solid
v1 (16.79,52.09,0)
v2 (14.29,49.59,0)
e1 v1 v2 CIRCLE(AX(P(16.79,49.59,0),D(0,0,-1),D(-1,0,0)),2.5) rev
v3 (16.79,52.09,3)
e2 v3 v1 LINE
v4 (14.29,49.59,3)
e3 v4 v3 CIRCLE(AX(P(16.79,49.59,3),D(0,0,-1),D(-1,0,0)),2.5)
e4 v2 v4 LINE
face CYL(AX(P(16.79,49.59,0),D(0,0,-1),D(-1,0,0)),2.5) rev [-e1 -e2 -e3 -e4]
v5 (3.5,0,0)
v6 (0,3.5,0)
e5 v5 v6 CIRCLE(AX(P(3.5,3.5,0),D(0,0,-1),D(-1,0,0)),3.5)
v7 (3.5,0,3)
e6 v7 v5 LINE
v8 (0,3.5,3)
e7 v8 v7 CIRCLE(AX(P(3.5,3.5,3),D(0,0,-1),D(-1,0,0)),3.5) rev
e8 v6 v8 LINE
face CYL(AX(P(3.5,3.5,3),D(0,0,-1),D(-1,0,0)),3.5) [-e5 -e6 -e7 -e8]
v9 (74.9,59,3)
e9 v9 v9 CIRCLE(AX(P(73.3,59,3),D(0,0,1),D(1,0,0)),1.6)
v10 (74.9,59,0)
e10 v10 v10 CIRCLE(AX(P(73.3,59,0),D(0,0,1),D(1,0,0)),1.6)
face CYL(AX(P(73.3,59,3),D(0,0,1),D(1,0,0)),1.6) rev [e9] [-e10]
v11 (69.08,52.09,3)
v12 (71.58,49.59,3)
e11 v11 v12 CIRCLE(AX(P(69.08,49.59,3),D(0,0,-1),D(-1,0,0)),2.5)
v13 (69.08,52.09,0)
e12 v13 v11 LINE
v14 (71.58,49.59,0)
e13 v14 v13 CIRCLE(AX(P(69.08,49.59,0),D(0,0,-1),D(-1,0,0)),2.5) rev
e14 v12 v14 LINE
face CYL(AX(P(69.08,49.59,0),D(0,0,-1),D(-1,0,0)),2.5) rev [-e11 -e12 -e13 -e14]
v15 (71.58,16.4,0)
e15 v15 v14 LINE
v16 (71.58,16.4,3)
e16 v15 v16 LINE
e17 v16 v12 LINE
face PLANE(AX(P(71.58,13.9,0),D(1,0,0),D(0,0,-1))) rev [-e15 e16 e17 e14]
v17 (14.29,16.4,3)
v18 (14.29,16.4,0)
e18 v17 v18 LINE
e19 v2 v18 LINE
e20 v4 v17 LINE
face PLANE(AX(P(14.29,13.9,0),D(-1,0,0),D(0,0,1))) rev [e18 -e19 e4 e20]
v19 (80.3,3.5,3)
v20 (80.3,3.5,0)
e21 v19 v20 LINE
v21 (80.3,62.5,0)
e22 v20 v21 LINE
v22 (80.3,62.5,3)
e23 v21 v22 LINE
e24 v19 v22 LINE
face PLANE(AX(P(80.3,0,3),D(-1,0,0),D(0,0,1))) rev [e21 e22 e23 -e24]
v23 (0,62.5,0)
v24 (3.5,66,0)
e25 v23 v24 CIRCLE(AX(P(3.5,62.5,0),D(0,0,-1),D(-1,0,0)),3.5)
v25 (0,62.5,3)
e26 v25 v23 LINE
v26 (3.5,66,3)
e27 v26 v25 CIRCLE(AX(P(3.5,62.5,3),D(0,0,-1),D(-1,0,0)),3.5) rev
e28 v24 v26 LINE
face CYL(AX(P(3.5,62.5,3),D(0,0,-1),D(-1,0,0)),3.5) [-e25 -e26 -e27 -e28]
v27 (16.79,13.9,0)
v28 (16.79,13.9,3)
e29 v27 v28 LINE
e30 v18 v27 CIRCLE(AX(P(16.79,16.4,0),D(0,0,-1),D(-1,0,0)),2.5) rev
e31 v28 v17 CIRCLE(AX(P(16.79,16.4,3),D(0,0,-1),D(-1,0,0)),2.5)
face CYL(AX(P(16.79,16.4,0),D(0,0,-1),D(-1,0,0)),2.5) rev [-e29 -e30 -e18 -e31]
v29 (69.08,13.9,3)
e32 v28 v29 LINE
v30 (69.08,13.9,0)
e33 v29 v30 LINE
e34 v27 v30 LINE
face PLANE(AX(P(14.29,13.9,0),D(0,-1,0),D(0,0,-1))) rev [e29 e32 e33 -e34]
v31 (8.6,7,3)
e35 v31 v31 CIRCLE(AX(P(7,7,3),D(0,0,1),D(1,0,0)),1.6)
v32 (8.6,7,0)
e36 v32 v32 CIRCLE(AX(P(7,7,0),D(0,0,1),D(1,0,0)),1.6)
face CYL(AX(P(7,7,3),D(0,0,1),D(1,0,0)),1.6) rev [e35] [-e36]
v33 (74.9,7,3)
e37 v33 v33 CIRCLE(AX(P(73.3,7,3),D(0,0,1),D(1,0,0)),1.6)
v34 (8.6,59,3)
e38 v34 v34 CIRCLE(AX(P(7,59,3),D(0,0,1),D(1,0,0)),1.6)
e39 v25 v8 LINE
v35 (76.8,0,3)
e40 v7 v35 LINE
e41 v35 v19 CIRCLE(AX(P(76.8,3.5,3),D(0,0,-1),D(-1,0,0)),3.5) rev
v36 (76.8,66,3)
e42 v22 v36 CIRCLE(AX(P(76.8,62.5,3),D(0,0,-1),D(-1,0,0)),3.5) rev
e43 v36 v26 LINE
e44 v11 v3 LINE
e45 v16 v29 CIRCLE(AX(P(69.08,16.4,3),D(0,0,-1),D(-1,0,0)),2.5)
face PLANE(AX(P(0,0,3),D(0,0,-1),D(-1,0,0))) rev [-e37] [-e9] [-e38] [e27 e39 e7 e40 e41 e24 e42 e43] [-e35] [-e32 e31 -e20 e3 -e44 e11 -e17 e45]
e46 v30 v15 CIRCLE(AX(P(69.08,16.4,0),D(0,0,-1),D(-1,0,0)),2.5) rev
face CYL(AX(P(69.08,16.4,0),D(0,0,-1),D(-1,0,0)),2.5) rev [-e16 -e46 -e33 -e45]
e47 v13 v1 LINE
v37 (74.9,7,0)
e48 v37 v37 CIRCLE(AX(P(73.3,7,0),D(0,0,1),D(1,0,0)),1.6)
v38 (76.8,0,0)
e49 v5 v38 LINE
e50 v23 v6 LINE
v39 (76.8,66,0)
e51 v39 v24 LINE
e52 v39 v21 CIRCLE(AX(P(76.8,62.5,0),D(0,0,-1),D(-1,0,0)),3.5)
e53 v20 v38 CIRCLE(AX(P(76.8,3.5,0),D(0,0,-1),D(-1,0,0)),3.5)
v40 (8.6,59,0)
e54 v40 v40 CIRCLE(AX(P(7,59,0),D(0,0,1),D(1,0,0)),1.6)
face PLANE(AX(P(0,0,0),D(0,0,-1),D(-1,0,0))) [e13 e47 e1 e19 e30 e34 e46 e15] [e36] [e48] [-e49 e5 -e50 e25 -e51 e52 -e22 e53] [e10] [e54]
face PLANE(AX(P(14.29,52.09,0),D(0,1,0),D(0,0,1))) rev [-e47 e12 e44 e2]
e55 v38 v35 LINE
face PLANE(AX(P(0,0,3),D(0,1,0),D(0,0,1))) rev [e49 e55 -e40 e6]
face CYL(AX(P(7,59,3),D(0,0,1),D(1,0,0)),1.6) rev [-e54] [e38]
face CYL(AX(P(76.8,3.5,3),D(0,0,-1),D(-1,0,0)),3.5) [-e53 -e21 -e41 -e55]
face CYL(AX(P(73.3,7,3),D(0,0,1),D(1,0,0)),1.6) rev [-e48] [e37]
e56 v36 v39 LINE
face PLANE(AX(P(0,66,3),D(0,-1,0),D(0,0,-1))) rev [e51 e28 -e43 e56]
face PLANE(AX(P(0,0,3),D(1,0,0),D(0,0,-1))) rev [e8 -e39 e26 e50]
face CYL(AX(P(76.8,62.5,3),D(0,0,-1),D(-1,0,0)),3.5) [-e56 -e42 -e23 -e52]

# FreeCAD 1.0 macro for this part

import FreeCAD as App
import Part
import Sketcher
Q = App.Units.Quantity


def edges_at(feature, points):
    """Names of the edges that pass closest to the given points."""
    edges = feature.Shape.Edges
    near = lambda p: min(range(len(edges)), key=lambda i: edges[i].distToShape(Part.Vertex(*p))[0])
    return sorted({f"Edge{near(p) + 1}" for p in points})

doc = App.newDocument("Part")
body = doc.addObject("PartDesign::Body", "Body")

sketch1 = doc.addObject("Sketcher::SketchObject", "Sketch")
body.addObject(sketch1)
sketch1.AttachmentSupport = (doc.XY_Plane, [""])
sketch1.MapMode = "FlatFace"
sketch1.addGeometry(Part.LineSegment(App.Vector(0, 66, 0), App.Vector(0, 0, 0)), False)
sketch1.addGeometry(Part.LineSegment(App.Vector(0, 0, 0), App.Vector(80, 0, 0)), False)
sketch1.addGeometry(Part.LineSegment(App.Vector(80, 0, 0), App.Vector(80, 66, 0)), False)
sketch1.addGeometry(Part.LineSegment(App.Vector(80, 66, 0), App.Vector(0, 66, 0)), False)
sketch1.addConstraint(Sketcher.Constraint("Coincident", 0, 2, 1, 1))
sketch1.addConstraint(Sketcher.Constraint("Coincident", 1, 2, 2, 1))
sketch1.addConstraint(Sketcher.Constraint("Coincident", 2, 2, 3, 1))
sketch1.addConstraint(Sketcher.Constraint("Coincident", 3, 2, 0, 1))
sketch1.addConstraint(Sketcher.Constraint("Vertical", 0))
sketch1.addConstraint(Sketcher.Constraint("Horizontal", 1))
sketch1.addConstraint(Sketcher.Constraint("Vertical", 2))
sketch1.addConstraint(Sketcher.Constraint("Horizontal", 3))
sketch1.addConstraint(Sketcher.Constraint("Coincident", 0, 2, -1, 1))
sketch1.addConstraint(Sketcher.Constraint("DistanceY", 0, 2, 0, 1, Q("66 mm")))
sketch1.addConstraint(Sketcher.Constraint("DistanceX", 1, 1, 1, 2, Q("80.3 mm")))
pad1 = doc.addObject("PartDesign::Pad", "Pad")
body.addObject(pad1)
pad1.Profile = sketch1
pad1.Length = 3

sketch2 = doc.addObject("Sketcher::SketchObject", "Sketch001")
body.addObject(sketch2)
sketch2.AttachmentSupport = (doc.XY_Plane, [""])
sketch2.MapMode = "FlatFace"
sketch2.AttachmentOffset = App.Placement(App.Vector(0, 0, 3), App.Rotation())
sketch2.addGeometry(Part.Circle(App.Vector(7, 59, 0), App.Vector(0, 0, 1), 1.6), False)
sketch2.addGeometry(Part.Circle(App.Vector(73.3, 59, 0), App.Vector(0, 0, 1), 1.6), False)
sketch2.addGeometry(Part.Circle(App.Vector(73.3, 7, 0), App.Vector(0, 0, 1), 1.6), False)
sketch2.addGeometry(Part.Circle(App.Vector(7, 7, 0), App.Vector(0, 0, 1), 1.6), False)
sketch2.addConstraint(Sketcher.Constraint("Equal", 0, 1))
sketch2.addConstraint(Sketcher.Constraint("Equal", 1, 2))
sketch2.addConstraint(Sketcher.Constraint("Equal", 2, 3))
sketch2.addConstraint(Sketcher.Constraint("Horizontal", 0, 3, 1, 3))
sketch2.addConstraint(Sketcher.Constraint("Horizontal", 2, 3, 3, 3))
sketch2.addConstraint(Sketcher.Constraint("Vertical", 1, 3, 2, 3))
sketch2.addConstraint(Sketcher.Constraint("Vertical", 0, 3, 3, 3))
sketch2.addConstraint(Sketcher.Constraint("Diameter", 0, Q("3.2 mm")))
sketch2.addConstraint(Sketcher.Constraint("DistanceX", -1, 1, 0, 3, Q("7 mm")))
sketch2.addConstraint(Sketcher.Constraint("DistanceY", -1, 1, 0, 3, Q("59 mm")))
sketch2.addConstraint(Sketcher.Constraint("DistanceY", -1, 1, 2, 3, Q("7 mm")))
sketch2.addConstraint(Sketcher.Constraint("DistanceX", -1, 1, 1, 3, Q("73.3 mm")))
doc.recompute()
hole = doc.addObject("PartDesign::Hole", "Hole")
body.addObject(hole)
hole.Profile = sketch2
hole.ThreadType = "None"
hole.Diameter = 3.2
hole.DepthType = "ThroughAll"

sketch3 = doc.addObject("Sketcher::SketchObject", "Sketch002")
body.addObject(sketch3)
sketch3.AttachmentSupport = (doc.XY_Plane, [""])
sketch3.MapMode = "FlatFace"
sketch3.AttachmentOffset = App.Placement(App.Vector(0, 0, 3), App.Rotation())
sketch3.addGeometry(Part.LineSegment(App.Vector(14, 52, 0), App.Vector(14, 14, 0)), False)
sketch3.addGeometry(Part.LineSegment(App.Vector(14, 14, 0), App.Vector(72, 14, 0)), False)
sketch3.addGeometry(Part.LineSegment(App.Vector(72, 14, 0), App.Vector(72, 52, 0)), False)
sketch3.addGeometry(Part.LineSegment(App.Vector(72, 52, 0), App.Vector(14, 52, 0)), False)
sketch3.addConstraint(Sketcher.Constraint("Coincident", 0, 2, 1, 1))
sketch3.addConstraint(Sketcher.Constraint("Coincident", 1, 2, 2, 1))
sketch3.addConstraint(Sketcher.Constraint("Coincident", 2, 2, 3, 1))
sketch3.addConstraint(Sketcher.Constraint("Coincident", 3, 2, 0, 1))
sketch3.addConstraint(Sketcher.Constraint("Vertical", 0))
sketch3.addConstraint(Sketcher.Constraint("Horizontal", 1))
sketch3.addConstraint(Sketcher.Constraint("Vertical", 2))
sketch3.addConstraint(Sketcher.Constraint("Horizontal", 3))
sketch3.addConstraint(Sketcher.Constraint("DistanceX", 1, 1, 1, 2, Q("57.29 mm")))
sketch3.addConstraint(Sketcher.Constraint("DistanceY", 0, 2, 0, 1, Q("38.19 mm")))
sketch3.addConstraint(Sketcher.Constraint("DistanceY", -1, 1, 0, 2, Q("13.9 mm")))
sketch3.addConstraint(Sketcher.Constraint("DistanceX", -1, 1, 0, 2, Q("14.29 mm")))
pocket1 = doc.addObject("PartDesign::Pocket", "Pocket")
body.addObject(pocket1)
pocket1.Profile = sketch3
pocket1.Type = "ThroughAll"
doc.recompute()

fillet = doc.addObject("PartDesign::Fillet", "Fillet")
body.addObject(fillet)
fillet.Base = (pocket1, edges_at(pocket1, [
    (0, 66, 1.5),
    (80.3, 66, 1.5),
    (80.3, 0, 1.5),
    (0, 0, 1.5),
]))
fillet.Radius = 3.5
doc.recompute()

fillet2 = doc.addObject("PartDesign::Fillet", "Fillet001")
body.addObject(fillet2)
fillet2.Base = (fillet, edges_at(fillet, [
    (14.29, 13.9, 1.5),
    (14.29, 52.09, 1.5),
    (71.58, 52.09, 1.5),
    (71.58, 13.9, 1.5),
]))
fillet2.Radius = 2.5

doc.recompute()
